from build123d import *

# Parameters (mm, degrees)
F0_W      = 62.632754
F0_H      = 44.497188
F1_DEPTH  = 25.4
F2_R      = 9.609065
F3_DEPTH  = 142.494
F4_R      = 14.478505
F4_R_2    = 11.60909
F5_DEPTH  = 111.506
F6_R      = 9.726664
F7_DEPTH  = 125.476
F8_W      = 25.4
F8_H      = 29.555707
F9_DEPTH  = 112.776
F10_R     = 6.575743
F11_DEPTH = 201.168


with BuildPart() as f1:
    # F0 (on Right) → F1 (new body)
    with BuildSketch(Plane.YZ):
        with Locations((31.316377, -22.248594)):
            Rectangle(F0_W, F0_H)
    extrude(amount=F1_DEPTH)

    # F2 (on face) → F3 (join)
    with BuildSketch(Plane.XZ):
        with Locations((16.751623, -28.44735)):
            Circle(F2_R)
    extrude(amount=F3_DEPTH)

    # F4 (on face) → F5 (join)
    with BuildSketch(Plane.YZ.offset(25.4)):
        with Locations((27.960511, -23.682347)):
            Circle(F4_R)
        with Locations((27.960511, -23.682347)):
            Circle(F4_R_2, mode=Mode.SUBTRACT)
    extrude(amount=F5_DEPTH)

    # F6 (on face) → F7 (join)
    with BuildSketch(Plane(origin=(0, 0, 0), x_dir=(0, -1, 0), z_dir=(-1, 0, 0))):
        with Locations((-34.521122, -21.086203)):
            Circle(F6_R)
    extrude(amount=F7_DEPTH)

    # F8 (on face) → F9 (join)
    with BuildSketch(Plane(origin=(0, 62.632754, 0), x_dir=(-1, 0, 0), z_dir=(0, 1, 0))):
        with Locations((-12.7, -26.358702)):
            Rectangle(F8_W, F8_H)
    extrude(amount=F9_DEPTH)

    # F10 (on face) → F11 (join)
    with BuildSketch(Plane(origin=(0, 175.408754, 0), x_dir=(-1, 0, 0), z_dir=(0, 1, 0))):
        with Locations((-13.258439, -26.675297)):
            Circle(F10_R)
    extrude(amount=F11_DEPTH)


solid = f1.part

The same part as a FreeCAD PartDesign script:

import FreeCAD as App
import Part
import Sketcher
from FreeCAD import Vector
Q = App.Units.Quantity

doc = App.newDocument("Part")
params = doc.addObject("Spreadsheet::Sheet", "Params")
for row, (alias, value) in enumerate([
    ("pad1_length", "1 in"),
    ("pad2_length", "5.61 in"),
    ("pad3_length", "4.39 in"),
    ("pad4_length", "4.94 in"),
    ("sketch5_width", "1 in"),
    ("pad5_length", "4.44 in"),
    ("pad6_length", "7.92 in"),
], start=1):
    params.set(f"A{row}", alias)
    params.set(f"B{row}", "=" + value)
    params.setAlias(f"B{row}", alias)

body = doc.addObject("PartDesign::Body", "Body")

# Sketch on YZ plane
sketch1 = doc.addObject("Sketcher::SketchObject", "Sketch")
body.addObject(sketch1)
sketch1.AttachmentSupport = (doc.YZ_Plane, [""])
sketch1.MapMode = "FlatFace"
sketch1.addGeometry([
    Part.LineSegment(Vector(0, 0, 0), Vector(0, -44, 0)),
    Part.LineSegment(Vector(0, -44, 0), Vector(63, -44, 0)),
    Part.LineSegment(Vector(63, -44, 0), Vector(63, 0, 0)),
    Part.LineSegment(Vector(63, 0, 0), Vector(0, 0, 0)),
], False)
sketch1.addConstraint([
    Sketcher.Constraint("Coincident", 0, 2, 1, 1),
    Sketcher.Constraint("Coincident", 1, 2, 2, 1),
    Sketcher.Constraint("Coincident", 2, 2, 3, 1),
    Sketcher.Constraint("Coincident", 3, 2, 0, 1),
    Sketcher.Constraint("Vertical", 0),
    Sketcher.Constraint("Horizontal", 1),
    Sketcher.Constraint("Vertical", 2),
    Sketcher.Constraint("Horizontal", 3),
    Sketcher.Constraint("Coincident", 3, 2, -1, 1),
    Sketcher.Constraint("DistanceX", 1, 1, 1, 2, Q("62.632754 mm")),
    Sketcher.Constraint("DistanceY", 0, 2, 0, 1, Q("44.497188 mm")),
])
pad1 = doc.addObject("PartDesign::Pad", "Pad")
body.addObject(pad1)
pad1.Profile = sketch1
pad1.setExpression("Length", "Params.pad1_length")

# Sketch on XZ plane
sketch2 = doc.addObject("Sketcher::SketchObject", "Sketch001")
body.addObject(sketch2)
sketch2.AttachmentSupport = (doc.XZ_Plane, [""])
sketch2.MapMode = "FlatFace"
sketch2.addGeometry(Part.Circle(Vector(17, -28, 0), Vector(0, 0, 1), 10), False)
sketch2.addConstraint([
    Sketcher.Constraint("Diameter", 0, Q("19.21813 mm")),
    Sketcher.Constraint("DistanceY", 0, 3, -1, 1, Q("28.44735 mm")),
    Sketcher.Constraint("DistanceX", -1, 1, 0, 3, Q("16.751623 mm")),
])
pad2 = doc.addObject("PartDesign::Pad", "Pad001")
body.addObject(pad2)
pad2.Profile = sketch2
pad2.setExpression("Length", "Params.pad2_length")

# Sketch on YZ plane
sketch3 = doc.addObject("Sketcher::SketchObject", "Sketch002")
body.addObject(sketch3)
sketch3.AttachmentSupport = (doc.YZ_Plane, [""])
sketch3.MapMode = "FlatFace"
sketch3.AttachmentOffset = App.Placement(Vector(0, 0, 1 * 25.4), App.Rotation())
sketch3.addGeometry([
    Part.Circle(Vector(28, -24, 0), Vector(0, 0, 1), 14),
    Part.Circle(Vector(28, -24, 0), Vector(0, 0, 1), 12),
], False)
sketch3.addConstraint([
    Sketcher.Constraint("Coincident", 1, 3, 0, 3),
    Sketcher.Constraint("Diameter", 0, Q("28.95701 mm")),
    Sketcher.Constraint("Diameter", 1, Q("23.21818 mm")),
    Sketcher.Constraint("DistanceX", -1, 1, 0, 3, Q("27.960511 mm")),
    Sketcher.Constraint("DistanceY", 0, 3, -1, 1, Q("23.682347 mm")),
])
pad3 = doc.addObject("PartDesign::Pad", "Pad002")
body.addObject(pad3)
pad3.Profile = sketch3
pad3.setExpression("Length", "Params.pad3_length")

# Sketch on YZ plane
sketch4 = doc.addObject("Sketcher::SketchObject", "Sketch003")
body.addObject(sketch4)
sketch4.AttachmentSupport = (doc.YZ_Plane, [""])
sketch4.MapMode = "FlatFace"
sketch4.addGeometry(Part.Circle(Vector(35, -21, 0), Vector(0, 0, 1), 10), False)
sketch4.addConstraint([
    Sketcher.Constraint("Diameter", 0, Q("19.453328 mm")),
    Sketcher.Constraint("DistanceX", -1, 1, 0, 3, Q("34.521122 mm")),
    Sketcher.Constraint("DistanceY", 0, 3, -1, 1, Q("21.086203 mm")),
])
pad4 = doc.addObject("PartDesign::Pad", "Pad003")
body.addObject(pad4)
pad4.Profile = sketch4
pad4.setExpression("Length", "Params.pad4_length")
pad4.Reversed = True

# Sketch on XZ plane
sketch5 = doc.addObject("Sketcher::SketchObject", "Sketch004")
body.addObject(sketch5)
sketch5.AttachmentSupport = (doc.XZ_Plane, [""])
sketch5.MapMode = "FlatFace"
sketch5.AttachmentOffset = App.Placement(Vector(0, 0, -62.632754), App.Rotation())
sketch5.addGeometry([
    Part.LineSegment(Vector(25, -12, 0), Vector(25, -41, 0)),
    Part.LineSegment(Vector(25, -41, 0), Vector(0, -41, 0)),
    Part.LineSegment(Vector(0, -41, 0), Vector(0, -12, 0)),
    Part.LineSegment(Vector(0, -12, 0), Vector(25, -12, 0)),
], False)
sketch5.addConstraint([
    Sketcher.Constraint("Coincident", 0, 2, 1, 1),
    Sketcher.Constraint("Coincident", 1, 2, 2, 1),
    Sketcher.Constraint("Coincident", 2, 2, 3, 1),
    Sketcher.Constraint("Coincident", 3, 2, 0, 1),
    Sketcher.Constraint("Vertical", 0),
    Sketcher.Constraint("Horizontal", 1),
    Sketcher.Constraint("Vertical", 2),
    Sketcher.Constraint("Horizontal", 3),
    Sketcher.Constraint("PointOnObject", 1, 2, -2),
    Sketcher.Constraint("DistanceX", 1, 2, 1, 1, Q("1 in")),
    Sketcher.Constraint("DistanceY", 0, 2, 0, 1, Q("29.555707 mm")),
    Sketcher.Constraint("DistanceY", 2, 2, -1, 1, Q("11.580849 mm")),
])
sketch5.setExpression("Constraints[9]", "Params.sketch5_width")
pad5 = doc.addObject("PartDesign::Pad", "Pad004")
body.addObject(pad5)
pad5.Profile = sketch5
pad5.setExpression("Length", "Params.pad5_length")
pad5.Reversed = True

# Sketch on XZ plane
sketch6 = doc.addObject("Sketcher::SketchObject", "Sketch005")
body.addObject(sketch6)
sketch6.AttachmentSupport = (doc.XZ_Plane, [""])
sketch6.MapMode = "FlatFace"
sketch6.AttachmentOffset = App.Placement(Vector(0, 0, -175.408754), App.Rotation())
sketch6.addGeometry(Part.Circle(Vector(13, -27, 0), Vector(0, 0, 1), 7), False)
sketch6.addConstraint([
    Sketcher.Constraint("Diameter", 0, Q("13.151486 mm")),
    Sketcher.Constraint("DistanceX", -1, 1, 0, 3, Q("13.258439 mm")),
    Sketcher.Constraint("DistanceY", 0, 3, -1, 1, Q("26.675297 mm")),
])
pad6 = doc.addObject("PartDesign::Pad", "Pad005")
body.addObject(pad6)
pad6.Profile = sketch6
pad6.setExpression("Length", "Params.pad6_length")
pad6.Reversed = True

doc.recompute()
